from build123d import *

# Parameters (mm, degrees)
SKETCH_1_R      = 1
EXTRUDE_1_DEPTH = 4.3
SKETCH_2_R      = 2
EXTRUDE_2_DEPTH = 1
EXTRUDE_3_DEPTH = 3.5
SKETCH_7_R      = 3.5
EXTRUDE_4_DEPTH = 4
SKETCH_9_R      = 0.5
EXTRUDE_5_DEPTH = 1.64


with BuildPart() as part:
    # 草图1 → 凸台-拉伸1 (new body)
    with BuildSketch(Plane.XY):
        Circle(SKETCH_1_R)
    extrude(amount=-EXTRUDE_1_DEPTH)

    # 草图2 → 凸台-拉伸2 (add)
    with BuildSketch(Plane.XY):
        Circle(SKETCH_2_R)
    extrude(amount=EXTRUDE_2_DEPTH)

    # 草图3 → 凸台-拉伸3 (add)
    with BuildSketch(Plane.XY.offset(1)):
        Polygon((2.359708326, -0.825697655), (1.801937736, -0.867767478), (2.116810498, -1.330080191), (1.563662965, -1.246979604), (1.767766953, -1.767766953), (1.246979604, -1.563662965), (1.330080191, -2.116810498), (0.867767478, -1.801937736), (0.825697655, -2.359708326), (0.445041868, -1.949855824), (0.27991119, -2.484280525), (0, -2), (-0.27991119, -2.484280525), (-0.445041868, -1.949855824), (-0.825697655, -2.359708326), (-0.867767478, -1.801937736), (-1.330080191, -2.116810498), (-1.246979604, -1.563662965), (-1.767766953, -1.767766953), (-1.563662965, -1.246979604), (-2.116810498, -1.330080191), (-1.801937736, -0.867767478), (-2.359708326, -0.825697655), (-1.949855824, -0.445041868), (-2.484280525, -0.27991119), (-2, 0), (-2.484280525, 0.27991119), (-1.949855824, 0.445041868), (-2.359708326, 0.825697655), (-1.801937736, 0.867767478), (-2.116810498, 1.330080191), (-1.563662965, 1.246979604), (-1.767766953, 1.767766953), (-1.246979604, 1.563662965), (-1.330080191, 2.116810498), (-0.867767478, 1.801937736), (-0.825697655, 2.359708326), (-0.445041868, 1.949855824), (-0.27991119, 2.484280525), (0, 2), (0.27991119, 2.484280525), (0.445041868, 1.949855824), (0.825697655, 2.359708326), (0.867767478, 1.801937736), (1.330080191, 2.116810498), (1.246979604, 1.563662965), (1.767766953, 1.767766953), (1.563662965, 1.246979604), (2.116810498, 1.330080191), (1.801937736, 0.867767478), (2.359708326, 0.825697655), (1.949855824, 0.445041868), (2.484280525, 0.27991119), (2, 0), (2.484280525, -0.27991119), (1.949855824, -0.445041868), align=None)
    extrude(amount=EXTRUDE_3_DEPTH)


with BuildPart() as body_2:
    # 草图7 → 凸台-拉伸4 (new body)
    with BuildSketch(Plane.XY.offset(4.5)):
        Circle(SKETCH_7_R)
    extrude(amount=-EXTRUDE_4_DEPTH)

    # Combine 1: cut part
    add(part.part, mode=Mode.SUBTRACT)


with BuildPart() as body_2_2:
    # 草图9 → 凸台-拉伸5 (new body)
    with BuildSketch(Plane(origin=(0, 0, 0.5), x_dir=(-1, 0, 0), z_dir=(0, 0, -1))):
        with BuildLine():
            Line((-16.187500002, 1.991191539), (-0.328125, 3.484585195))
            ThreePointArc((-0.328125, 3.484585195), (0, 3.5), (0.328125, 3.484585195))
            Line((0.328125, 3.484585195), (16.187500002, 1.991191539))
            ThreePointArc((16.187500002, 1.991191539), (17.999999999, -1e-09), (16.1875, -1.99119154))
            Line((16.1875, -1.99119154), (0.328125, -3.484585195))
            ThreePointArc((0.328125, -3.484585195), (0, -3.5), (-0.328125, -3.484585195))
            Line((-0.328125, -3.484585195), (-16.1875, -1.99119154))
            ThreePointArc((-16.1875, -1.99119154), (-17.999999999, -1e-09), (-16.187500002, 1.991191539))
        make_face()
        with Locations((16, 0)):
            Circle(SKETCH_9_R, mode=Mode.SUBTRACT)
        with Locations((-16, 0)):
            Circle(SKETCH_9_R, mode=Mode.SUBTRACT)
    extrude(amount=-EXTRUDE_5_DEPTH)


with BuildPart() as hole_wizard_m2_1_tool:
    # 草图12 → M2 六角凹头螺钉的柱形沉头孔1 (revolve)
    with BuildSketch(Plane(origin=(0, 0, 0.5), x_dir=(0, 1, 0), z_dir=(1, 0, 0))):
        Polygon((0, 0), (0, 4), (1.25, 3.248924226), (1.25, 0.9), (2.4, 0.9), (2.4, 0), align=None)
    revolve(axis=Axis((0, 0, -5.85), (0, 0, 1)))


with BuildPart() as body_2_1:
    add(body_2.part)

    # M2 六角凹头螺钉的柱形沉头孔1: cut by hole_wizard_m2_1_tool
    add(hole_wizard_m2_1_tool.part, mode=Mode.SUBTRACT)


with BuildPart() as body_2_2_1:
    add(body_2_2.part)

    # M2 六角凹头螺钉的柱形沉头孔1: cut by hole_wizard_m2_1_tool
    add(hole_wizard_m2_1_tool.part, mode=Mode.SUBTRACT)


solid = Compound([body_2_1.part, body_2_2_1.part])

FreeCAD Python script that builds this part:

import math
import FreeCAD as App
import Part
import Sketcher
Q = App.Units.Quantity


def add_polygon(sketch, points):
    """Adds a closed chain of lines whose ends are joined by coincident constraints."""
    first, n = sketch.GeometryCount, len(points)
    for a, b in zip(points, points[1:] + points[:1]):
        sketch.addGeometry(Part.LineSegment(App.Vector(*a, 0), App.Vector(*b, 0)), False)
    for i in range(n):
        sketch.addConstraint(Sketcher.Constraint("Coincident", first + i, 2, first + (i + 1) % n, 1))

doc = App.newDocument("Part")
params = doc.addObject("Spreadsheet::Sheet", "Params")
for row, (alias, value) in enumerate([
    ("sketch1_diameter", "2 mm"),
    ("pad1_length", "4.3 mm"),
    ("sketch2_diameter", "4 mm"),
    ("pad2_length", "1 mm"),
    ("pad3_length", "3.5 mm"),
    ("sketch4_diameter", "7 mm"),
    ("pad4_length", "4 mm"),
    ("sketch5_diameter", "1 mm"),
    ("sketch5_radius", "2 mm"),
    ("sketch5_radius2", "3.5 mm"),
    ("pad5_length", "1.64 mm"),
    ("sketch6_height", "4 mm"),
    ("sketch6_width", "2.4 mm"),
    ("sketch6_height2", "0.9 mm"),
    ("sketch6_width2", "1.15 mm"),
    ("revolution_angle", "360 deg"),
], start=1):
    params.set(f"A{row}", alias)
    params.set(f"B{row}", "=" + value)
    params.setAlias(f"B{row}", alias)

body = doc.addObject("PartDesign::Body", "Body")

# Sketch on XY plane
sketch1 = body.newObject("Sketcher::SketchObject", "Sketch")
sketch1.AttachmentSupport = (doc.getObject("XY_Plane"), [""])
sketch1.MapMode = "FlatFace"
sketch1.addGeometry(Part.Circle(App.Vector(0, 0, 0), App.Vector(0, 0, 1), 1), False)
sketch1.addConstraint(Sketcher.Constraint("Coincident", 0, 3, -1, 1))
sketch1.addConstraint(Sketcher.Constraint("Diameter", 0, 2.0))
sketch1.setExpression("Constraints[1]", "Params.sketch1_diameter")
pad1 = body.newObject("PartDesign::Pad", "Pad")
pad1.Profile = sketch1
pad1.setExpression("Length", "Params.pad1_length")
pad1.Reversed = True

# Sketch on XY plane
sketch2 = body.newObject("Sketcher::SketchObject", "Sketch001")
sketch2.AttachmentSupport = (doc.getObject("XY_Plane"), [""])
sketch2.MapMode = "FlatFace"
sketch2.addGeometry(Part.Circle(App.Vector(0, 0, 0), App.Vector(0, 0, 1), 2), False)
sketch2.addConstraint(Sketcher.Constraint("Coincident", 0, 3, -1, 1))
sketch2.addConstraint(Sketcher.Constraint("Diameter", 0, 4.0))
sketch2.setExpression("Constraints[1]", "Params.sketch2_diameter")
pad2 = body.newObject("PartDesign::Pad", "Pad001")
pad2.Profile = sketch2
pad2.setExpression("Length", "Params.pad2_length")

# Sketch on XY plane
sketch3 = body.newObject("Sketcher::SketchObject", "Sketch002")
sketch3.AttachmentSupport = (doc.getObject("XY_Plane"), [""])
sketch3.MapMode = "FlatFace"
sketch3.AttachmentOffset = App.Placement(App.Vector(0, 0, 1), App.Rotation())
add_polygon(sketch3, [(1.8, -0.9), (2.4, -0.8), (1.9, -0.4), (2.5, -0.3), (2, 0), (2.5, 0.3), (1.9, 0.4), (2.4, 0.8), (1.8, 0.9), (2.1, 1.3), (1.6, 1.2), (1.8, 1.8), (1.2, 1.6), (1.3, 2.1), (0.9, 1.8), (0.8, 2.4), (0.4, 1.9), (0.3, 2.5), (0, 2), (-0.3, 2.5), (-0.4, 1.9), (-0.8, 2.4), (-0.9, 1.8), (-1.3, 2.1), (-1.2, 1.6), (-1.8, 1.8), (-1.6, 1.2), (-2.1, 1.3), (-1.8, 0.9), (-2.4, 0.8), (-1.9, 0.4), (-2.5, 0.3), (-2, 0), (-2.5, -0.3), (-1.9, -0.4), (-2.4, -0.8), (-1.8, -0.9), (-2.1, -1.3), (-1.6, -1.2), (-1.8, -1.8), (-1.2, -1.6), (-1.3, -2.1), (-0.9, -1.8), (-0.8, -2.4), (-0.4, -1.9), (-0.3, -2.5), (0, -2), (0.3, -2.5), (0.4, -1.9), (0.8, -2.4), (0.9, -1.8), (1.3, -2.1), (1.2, -1.6), (1.8, -1.8), (1.6, -1.2), (2.1, -1.3)])  # lines 0-55
sketch3.addConstraint(Sketcher.Constraint("Symmetric", 0, 2, 28, 2, -1, 1))
sketch3.addConstraint(Sketcher.Constraint("Symmetric", 1, 2, 29, 2, -1, 1))
sketch3.addConstraint(Sketcher.Constraint("Symmetric", 2, 2, 30, 2, -1, 1))
sketch3.addConstraint(Sketcher.Constraint("Symmetric", 3, 2, 31, 2, -1, 1))
sketch3.addConstraint(Sketcher.Constraint("Symmetric", 4, 2, 32, 2, -1, 1))
sketch3.addConstraint(Sketcher.Constraint("Symmetric", 5, 2, 33, 2, -1, 1))
sketch3.addConstraint(Sketcher.Constraint("Symmetric", 6, 2, 34, 2, -1, 1))
sketch3.addConstraint(Sketcher.Constraint("Symmetric", 7, 2, 35, 2, -1, 1))
sketch3.addConstraint(Sketcher.Constraint("Symmetric", 8, 2, 36, 2, -1, 1))
sketch3.addConstraint(Sketcher.Constraint("Symmetric", 9, 2, 37, 2, -1, 1))
sketch3.addConstraint(Sketcher.Constraint("Symmetric", 10, 2, 38, 2, -1, 1))
sketch3.addConstraint(Sketcher.Constraint("Symmetric", 11, 2, 39, 2, -1, 1))
sketch3.addConstraint(Sketcher.Constraint("Symmetric", 12, 2, 40, 2, -1, 1))
sketch3.addConstraint(Sketcher.Constraint("Symmetric", 13, 2, 41, 2, -1, 1))
sketch3.addConstraint(Sketcher.Constraint("Symmetric", 14, 2, 42, 2, -1, 1))
sketch3.addConstraint(Sketcher.Constraint("Symmetric", 15, 2, 43, 2, -1, 1))
sketch3.addConstraint(Sketcher.Constraint("Symmetric", 16, 2, 44, 2, -1, 1))
sketch3.addConstraint(Sketcher.Constraint("Symmetric", 17, 2, 45, 2, -1, 1))
sketch3.addConstraint(Sketcher.Constraint("Symmetric", 18, 2, 46, 2, -1, 1))
sketch3.addConstraint(Sketcher.Constraint("Symmetric", 19, 2, 47, 2, -1, 1))
sketch3.addConstraint(Sketcher.Constraint("Symmetric", 20, 2, 48, 2, -1, 1))
sketch3.addConstraint(Sketcher.Constraint("Symmetric", 21, 2, 49, 2, -1, 1))
sketch3.addConstraint(Sketcher.Constraint("Symmetric", 22, 2, 50, 2, -1, 1))
sketch3.addConstraint(Sketcher.Constraint("Symmetric", 23, 2, 51, 2, -1, 1))
sketch3.addConstraint(Sketcher.Constraint("Symmetric", 24, 2, 52, 2, -1, 1))
sketch3.addConstraint(Sketcher.Constraint("Symmetric", 25, 2, 53, 2, -1, 1))
sketch3.addConstraint(Sketcher.Constraint("Symmetric", 26, 2, 54, 2, -1, 1))
sketch3.addConstraint(Sketcher.Constraint("Symmetric", 27, 2, 55, 2, -1, 1))
sketch3.addConstraint(Sketcher.Constraint("Symmetric", 16, 2, 18, 2, -2))
sketch3.addConstraint(Sketcher.Constraint("Symmetric", 15, 2, 19, 2, -2))
sketch3.addConstraint(Sketcher.Constraint("Symmetric", 14, 2, 20, 2, -2))
sketch3.addConstraint(Sketcher.Constraint("Symmetric", 13, 2, 21, 2, -2))
sketch3.addConstraint(Sketcher.Constraint("Symmetric", 12, 2, 22, 2, -2))
sketch3.addConstraint(Sketcher.Constraint("Symmetric", 11, 2, 23, 2, -2))
sketch3.addConstraint(Sketcher.Constraint("Symmetric", 10, 2, 24, 2, -2))
sketch3.addConstraint(Sketcher.Constraint("Symmetric", 9, 2, 25, 2, -2))
sketch3.addConstraint(Sketcher.Constraint("Symmetric", 8, 2, 26, 2, -2))
sketch3.addConstraint(Sketcher.Constraint("Symmetric", 7, 2, 27, 2, -2))
sketch3.addConstraint(Sketcher.Constraint("Symmetric", 6, 2, 28, 2, -2))
sketch3.addConstraint(Sketcher.Constraint("Symmetric", 5, 2, 29, 2, -2))
sketch3.addConstraint(Sketcher.Constraint("Symmetric", 4, 2, 30, 2, -2))
sketch3.addConstraint(Sketcher.Constraint("PointOnObject", 3, 2, -1))
sketch3.addConstraint(Sketcher.Constraint("PointOnObject", 17, 2, -2))
sketch3.addConstraint(Sketcher.Constraint("Perpendicular", 0, 14))
sketch3.addConstraint(Sketcher.Constraint("Perpendicular", 1, 15))
sketch3.addConstraint(Sketcher.Constraint("Perpendicular", 2, 16))
sketch3.addConstraint(Sketcher.Constraint("Perpendicular", 3, 17))
sketch3.addConstraint(Sketcher.Constraint("Perpendicular", 8, 22))
sketch3.addConstraint(Sketcher.Constraint("Perpendicular", 9, 23))
sketch3.addConstraint(Sketcher.Constraint("Perpendicular", 10, 24))
sketch3.addConstraint(Sketcher.Constraint("Equal", 0, 1))
sketch3.addConstraint(Sketcher.Constraint("Equal", 1, 2))
sketch3.addConstraint(Sketcher.Constraint("Equal", 2, 3))
sketch3.addConstraint(Sketcher.Constraint("Equal", 7, 8))
sketch3.addConstraint(Sketcher.Constraint("Equal", 8, 9))
sketch3.addConstraint(Sketcher.Constraint("Equal", 9, 10))
sketch3.addConstraint(Sketcher.Constraint("Equal", 10, 11))
sketch3.addConstraint(Sketcher.Constraint("Equal", 11, 12))
sketch3.addConstraint(Sketcher.Constraint("Equal", 12, 13))
sketch3.addConstraint(Sketcher.Constraint("Equal", 13, 14))
sketch3.addConstraint(Sketcher.Constraint("Equal", 14, 15))
sketch3.addConstraint(Sketcher.Constraint("Equal", 15, 16))
sketch3.addConstraint(Sketcher.Constraint("Equal", 16, 17))
sketch3.addConstraint(Sketcher.Constraint("DistanceX", -1, 1, 3, 2, 2.0))
sketch3.addConstraint(Sketcher.Constraint("DistanceY", 7, 2, 10, 2, 0.899999))
sketch3.addConstraint(Sketcher.Constraint("DistanceY", 9, 2, 8, 2, 0.083101))
sketch3.addConstraint(Sketcher.Constraint("DistanceX", -1, 1, 0, 2, 2.359708))
sketch3.addConstraint(Sketcher.Constraint("DistanceY", 1, 2, -1, 1, 0.445042))
sketch3.addConstraint(Sketcher.Constraint("DistanceX", -1, 1, 2, 2, 2.484281))
sketch3.addConstraint(Sketcher.Constraint("DistanceY", 2, 2, -1, 1, 0.279911))
sketch3.addConstraint(Sketcher.Constraint("DistanceX", -1, 1, 8, 2, 2.11681))
pad3 = body.newObject("PartDesign::Pad", "Pad002")
pad3.Profile = sketch3
pad3.setExpression("Length", "Params.pad3_length")
body2 = doc.addObject("PartDesign::Body", "Body001")

# Sketch on XY plane
sketch4 = body2.newObject("Sketcher::SketchObject", "Sketch003")
sketch4.AttachmentSupport = (doc.getObject("XY_Plane001"), [""])
sketch4.MapMode = "FlatFace"
sketch4.AttachmentOffset = App.Placement(App.Vector(0, 0, 4.5), App.Rotation())
sketch4.addGeometry(Part.Circle(App.Vector(0, 0, 0), App.Vector(0, 0, 1), 3.5), False)
sketch4.addConstraint(Sketcher.Constraint("Coincident", 0, 3, -1, 1))
sketch4.addConstraint(Sketcher.Constraint("Diameter", 0, 7.0))
sketch4.setExpression("Constraints[1]", "Params.sketch4_diameter")
pad4 = body2.newObject("PartDesign::Pad", "Pad003")
pad4.Profile = sketch4
pad4.setExpression("Length", "Params.pad4_length")
pad4.Reversed = True
doc.recompute()

boolean = body2.newObject("PartDesign::Boolean", "Boolean")
boolean.Type = "Cut"
boolean.addObjects([body])
body3 = doc.addObject("PartDesign::Body", "Body002")

# Sketch on XY plane
sketch5 = body3.newObject("Sketcher::SketchObject", "Sketch004")
sketch5.AttachmentSupport = (doc.getObject("XY_Plane002"), [""])
sketch5.MapMode = "FlatFace"
sketch5.AttachmentOffset = App.Placement(App.Vector(0, 0, 0.5), App.Rotation())
sketch5.addGeometry(Part.LineSegment(App.Vector(0.3, 3.5, 0), App.Vector(16.2, 2, 0)), False)
sketch5.addGeometry(Part.ArcOfCircle(Part.Circle(App.Vector(16, 0, 0), App.Vector(0, 0, 1), 2), math.radians(-85), math.radians(85)), False)
sketch5.addGeometry(Part.LineSegment(App.Vector(16.2, -2, 0), App.Vector(0.3, -3.5, 0)), False)
sketch5.addGeometry(Part.ArcOfCircle(Part.Circle(App.Vector(0, 0, 0), App.Vector(0, 0, 1), 3.5), math.radians(-95.38), math.radians(-84.62)), False)
sketch5.addGeometry(Part.LineSegment(App.Vector(-0.3, -3.5, 0), App.Vector(-16.2, -2, 0)), False)
sketch5.addGeometry(Part.ArcOfCircle(Part.Circle(App.Vector(-16, 0, 0), App.Vector(0, 0, 1), 2), math.radians(95), math.radians(265)), False)
sketch5.addGeometry(Part.LineSegment(App.Vector(-16.2, 2, 0), App.Vector(-0.3, 3.5, 0)), False)
sketch5.addGeometry(Part.ArcOfCircle(Part.Circle(App.Vector(0, 0, 0), App.Vector(0, 0, 1), 3.5), math.radians(84.62), math.radians(95.38)), False)
sketch5.addGeometry(Part.Circle(App.Vector(-16, 0, 0), App.Vector(0, 0, 1), 0.5), False)
sketch5.addGeometry(Part.Circle(App.Vector(16, 0, 0), App.Vector(0, 0, 1), 0.5), False)
sketch5.addConstraint(Sketcher.Constraint("Tangent", 0, 2, 1, 2))
sketch5.addConstraint(Sketcher.Constraint("Tangent", 1, 1, 2, 1))
sketch5.addConstraint(Sketcher.Constraint("Tangent", 2, 2, 3, 2))
sketch5.addConstraint(Sketcher.Constraint("Tangent", 3, 1, 4, 1))
sketch5.addConstraint(Sketcher.Constraint("Tangent", 4, 2, 5, 2))
sketch5.addConstraint(Sketcher.Constraint("Tangent", 5, 1, 6, 1))
sketch5.addConstraint(Sketcher.Constraint("Tangent", 6, 2, 7, 2))
sketch5.addConstraint(Sketcher.Constraint("Tangent", 7, 1, 0, 1))
sketch5.addConstraint(Sketcher.Constraint("Coincident", 3, 3, -1, 1))
sketch5.addConstraint(Sketcher.Constraint("Coincident", 7, 3, -1, 1))
sketch5.addConstraint(Sketcher.Constraint("Coincident", 8, 3, 5, 3))
sketch5.addConstraint(Sketcher.Constraint("Coincident", 9, 3, 1, 3))
sketch5.addConstraint(Sketcher.Constraint("Equal", 1, 5))
sketch5.addConstraint(Sketcher.Constraint("Equal", 3, 7))
sketch5.addConstraint(Sketcher.Constraint("Equal", 8, 9))
sketch5.addConstraint(Sketcher.Constraint("Symmetric", 1, 3, 5, 3, -1, 1))
sketch5.addConstraint(Sketcher.Constraint("PointOnObject", 1, 3, -1))
sketch5.addConstraint(Sketcher.Constraint("Diameter", 8, 1.0))
sketch5.addConstraint(Sketcher.Constraint("Radius", 1, 2.0))
sketch5.addConstraint(Sketcher.Constraint("Radius", 3, 3.5))
sketch5.addConstraint(Sketcher.Constraint("DistanceX", -1, 1, 1, 3, 16.0))
sketch5.setExpression("Constraints[17]", "Params.sketch5_diameter")
sketch5.setExpression("Constraints[18]", "Params.sketch5_radius")
sketch5.setExpression("Constraints[19]", "Params.sketch5_radius2")
pad5 = body3.newObject("PartDesign::Pad", "Pad004")
pad5.Profile = sketch5
pad5.setExpression("Length", "Params.pad5_length")
body4 = doc.addObject("PartDesign::Body", "Body003")

# Sketch on YZ plane
sketch6 = body4.newObject("Sketcher::SketchObject", "Sketch005")
sketch6.AttachmentSupport = (doc.getObject("YZ_Plane003"), [""])
sketch6.MapMode = "FlatFace"
add_polygon(sketch6, [(0, 4.5), (0, 0.5), (2.4, 0.5), (2.4, 1.4), (1.2, 1.4), (1.2, 3.7)])  # lines 0-5
sketch6.addConstraint(Sketcher.Constraint("Vertical", 0))
sketch6.addConstraint(Sketcher.Constraint("Horizontal", 1))
sketch6.addConstraint(Sketcher.Constraint("Vertical", 2))
sketch6.addConstraint(Sketcher.Constraint("Horizontal", 3))
sketch6.addConstraint(Sketcher.Constraint("Vertical", 4))
sketch6.addConstraint(Sketcher.Constraint("PointOnObject", 0, 2, -2))
sketch6.addConstraint(Sketcher.Constraint("DistanceY", 0, 2, 0, 1, 4.0))
sketch6.addConstraint(Sketcher.Constraint("Angle", 5, Q("149 deg")))
sketch6.addConstraint(Sketcher.Constraint("DistanceX", 1, 1, 1, 2, 2.4))
sketch6.addConstraint(Sketcher.Constraint("DistanceY", 2, 1, 2, 2, 0.9))
sketch6.addConstraint(Sketcher.Constraint("DistanceX", 3, 2, 3, 1, 1.15))
sketch6.addConstraint(Sketcher.Constraint("DistanceY", -1, 1, 0, 2, 0.5))
sketch6.setExpression("Constraints[12]", "Params.sketch6_height")
sketch6.setExpression("Constraints[14]", "Params.sketch6_width")
sketch6.setExpression("Constraints[15]", "Params.sketch6_height2")
sketch6.setExpression("Constraints[16]", "Params.sketch6_width2")
revolution = body4.newObject("PartDesign::Revolution", "Revolution")
revolution.Profile = sketch6
revolution.ReferenceAxis = (sketch6, ["V_Axis"])
revolution.setExpression("Angle", "Params.revolution_angle")
doc.recompute()

body5 = doc.addObject("PartDesign::Body", "Body004")
body5.BaseFeature = body4
boolean2 = body2.newObject("PartDesign::Boolean", "Boolean001")
boolean2.Type = "Cut"
boolean2.addObjects([body5])
doc.recompute()

boolean3 = body3.newObject("PartDesign::Boolean", "Boolean002")
boolean3.Type = "Cut"
boolean3.addObjects([body4])

doc.recompute()
